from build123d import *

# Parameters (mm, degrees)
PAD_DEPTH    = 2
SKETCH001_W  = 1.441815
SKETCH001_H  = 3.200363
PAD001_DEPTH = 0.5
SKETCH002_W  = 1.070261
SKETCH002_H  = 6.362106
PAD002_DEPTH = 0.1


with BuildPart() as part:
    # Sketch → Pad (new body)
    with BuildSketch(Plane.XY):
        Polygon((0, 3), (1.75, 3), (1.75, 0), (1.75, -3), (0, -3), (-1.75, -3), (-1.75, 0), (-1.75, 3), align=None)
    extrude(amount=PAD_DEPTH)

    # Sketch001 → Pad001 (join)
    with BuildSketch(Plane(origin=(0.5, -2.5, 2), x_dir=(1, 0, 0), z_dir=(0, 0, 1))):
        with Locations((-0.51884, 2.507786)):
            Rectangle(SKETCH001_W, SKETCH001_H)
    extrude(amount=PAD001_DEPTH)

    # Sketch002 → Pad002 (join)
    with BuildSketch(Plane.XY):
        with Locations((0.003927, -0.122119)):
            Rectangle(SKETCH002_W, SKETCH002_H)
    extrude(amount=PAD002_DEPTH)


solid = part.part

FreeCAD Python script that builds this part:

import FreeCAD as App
import Part
import Sketcher
Q = App.Units.Quantity

doc = App.newDocument("Part")
params = doc.addObject("Spreadsheet::Sheet", "Params")
for row, (alias, value) in enumerate([
    ("sketch1_height", "6 mm"),
    ("sketch1_width", "3.5 mm"),
    ("pad1_length", "2 mm"),
    ("pad2_length", "0.5 mm"),
    ("pad3_length", "0.1 mm"),
], start=1):
    params.set(f"A{row}", alias)
    params.set(f"B{row}", "=" + value)
    params.setAlias(f"B{row}", alias)

body = doc.addObject("PartDesign::Body", "Body")

# Sketch on XY plane
sketch1 = body.newObject("Sketcher::SketchObject", "Sketch")
sketch1.AttachmentSupport = (doc.getObject("XY_Plane"), [""])
sketch1.MapMode = "FlatFace"
sketch1.addGeometry([
    Part.LineSegment(App.Vector(1.8, 3, 0), App.Vector(-1.8, 3, 0)),
    Part.LineSegment(App.Vector(-1.8, 3, 0), App.Vector(-1.8, -3, 0)),
    Part.LineSegment(App.Vector(-1.8, -3, 0), App.Vector(1.8, -3, 0)),
    Part.LineSegment(App.Vector(1.8, -3, 0), App.Vector(1.8, 3, 0)),
], False)
sketch1.addConstraint([
    Sketcher.Constraint("Coincident", 0, 2, 1, 1),
    Sketcher.Constraint("Coincident", 1, 2, 2, 1),
    Sketcher.Constraint("Coincident", 2, 2, 3, 1),
    Sketcher.Constraint("Coincident", 3, 2, 0, 1),
    Sketcher.Constraint("Horizontal", 0),
    Sketcher.Constraint("Vertical", 1),
    Sketcher.Constraint("Horizontal", 2),
    Sketcher.Constraint("Vertical", 3),
    Sketcher.Constraint("Symmetric", 0, 2, 2, 2, -1, 1),
    Sketcher.Constraint("DistanceY", 1, 2, 1, 1, Q("6 mm")),
    Sketcher.Constraint("DistanceX", 0, 2, 0, 1, Q("3.5 mm")),
])
sketch1.setExpression("Constraints[9]", "Params.sketch1_height")
sketch1.setExpression("Constraints[10]", "Params.sketch1_width")
pad1 = body.newObject("PartDesign::Pad", "Pad")
pad1.Profile = sketch1
pad1.setExpression("Length", "Params.pad1_length")

# Sketch on XY plane
sketch2 = body.newObject("Sketcher::SketchObject", "Sketch001")
sketch2.AttachmentSupport = (doc.getObject("XY_Plane"), [""])
sketch2.MapMode = "FlatFace"
sketch2.AttachmentOffset = App.Placement(App.Vector(0, 0, 2), App.Rotation())
sketch2.addGeometry([
    Part.LineSegment(App.Vector(-0.7, 1.6, 0), App.Vector(-0.7, -1.6, 0)),
    Part.LineSegment(App.Vector(-0.7, -1.6, 0), App.Vector(0.7, -1.6, 0)),
    Part.LineSegment(App.Vector(0.7, -1.6, 0), App.Vector(0.7, 1.6, 0)),
    Part.LineSegment(App.Vector(0.7, 1.6, 0), App.Vector(-0.7, 1.6, 0)),
], False)
sketch2.addConstraint([
    Sketcher.Constraint("Coincident", 0, 2, 1, 1),
    Sketcher.Constraint("Coincident", 1, 2, 2, 1),
    Sketcher.Constraint("Coincident", 2, 2, 3, 1),
    Sketcher.Constraint("Coincident", 3, 2, 0, 1),
    Sketcher.Constraint("Vertical", 0),
    Sketcher.Constraint("Horizontal", 1),
    Sketcher.Constraint("Vertical", 2),
    Sketcher.Constraint("Horizontal", 3),
    Sketcher.Constraint("DistanceX", 1, 1, 1, 2, Q("1.441815 mm")),
    Sketcher.Constraint("DistanceY", 0, 2, 0, 1, Q("3.200363 mm")),
    Sketcher.Constraint("DistanceX", 0, 2, -1, 1, Q("0.739748 mm")),
    Sketcher.Constraint("DistanceY", 0, 2, -1, 1, Q("1.592396 mm")),
])
pad2 = body.newObject("PartDesign::Pad", "Pad001")
pad2.Profile = sketch2
pad2.setExpression("Length", "Params.pad2_length")

# Sketch on XY plane
sketch3 = body.newObject("Sketcher::SketchObject", "Sketch002")
sketch3.AttachmentSupport = (doc.getObject("XY_Plane"), [""])
sketch3.MapMode = "FlatFace"
sketch3.addGeometry([
    Part.LineSegment(App.Vector(-0.5, 3.1, 0), App.Vector(-0.5, -3.3, 0)),
    Part.LineSegment(App.Vector(-0.5, -3.3, 0), App.Vector(0.5, -3.3, 0)),
    Part.LineSegment(App.Vector(0.5, -3.3, 0), App.Vector(0.5, 3.1, 0)),
    Part.LineSegment(App.Vector(0.5, 3.1, 0), App.Vector(-0.5, 3.1, 0)),
], False)
sketch3.addConstraint([
    Sketcher.Constraint("Coincident", 0, 2, 1, 1),
    Sketcher.Constraint("Coincident", 1, 2, 2, 1),
    Sketcher.Constraint("Coincident", 2, 2, 3, 1),
    Sketcher.Constraint("Coincident", 3, 2, 0, 1),
    Sketcher.Constraint("Vertical", 0),
    Sketcher.Constraint("Horizontal", 1),
    Sketcher.Constraint("Vertical", 2),
    Sketcher.Constraint("Horizontal", 3),
    Sketcher.Constraint("DistanceX", 1, 1, 1, 2, Q("1.070261 mm")),
    Sketcher.Constraint("DistanceY", 0, 2, 0, 1, Q("6.362106 mm")),
    Sketcher.Constraint("DistanceY", 0, 2, -1, 1, Q("3.303172 mm")),
    Sketcher.Constraint("DistanceX", 0, 2, -1, 1, Q("0.531204 mm")),
])
pad3 = body.newObject("PartDesign::Pad", "Pad002")
pad3.Profile = sketch3
pad3.setExpression("Length", "Params.pad3_length")

doc.recompute()
